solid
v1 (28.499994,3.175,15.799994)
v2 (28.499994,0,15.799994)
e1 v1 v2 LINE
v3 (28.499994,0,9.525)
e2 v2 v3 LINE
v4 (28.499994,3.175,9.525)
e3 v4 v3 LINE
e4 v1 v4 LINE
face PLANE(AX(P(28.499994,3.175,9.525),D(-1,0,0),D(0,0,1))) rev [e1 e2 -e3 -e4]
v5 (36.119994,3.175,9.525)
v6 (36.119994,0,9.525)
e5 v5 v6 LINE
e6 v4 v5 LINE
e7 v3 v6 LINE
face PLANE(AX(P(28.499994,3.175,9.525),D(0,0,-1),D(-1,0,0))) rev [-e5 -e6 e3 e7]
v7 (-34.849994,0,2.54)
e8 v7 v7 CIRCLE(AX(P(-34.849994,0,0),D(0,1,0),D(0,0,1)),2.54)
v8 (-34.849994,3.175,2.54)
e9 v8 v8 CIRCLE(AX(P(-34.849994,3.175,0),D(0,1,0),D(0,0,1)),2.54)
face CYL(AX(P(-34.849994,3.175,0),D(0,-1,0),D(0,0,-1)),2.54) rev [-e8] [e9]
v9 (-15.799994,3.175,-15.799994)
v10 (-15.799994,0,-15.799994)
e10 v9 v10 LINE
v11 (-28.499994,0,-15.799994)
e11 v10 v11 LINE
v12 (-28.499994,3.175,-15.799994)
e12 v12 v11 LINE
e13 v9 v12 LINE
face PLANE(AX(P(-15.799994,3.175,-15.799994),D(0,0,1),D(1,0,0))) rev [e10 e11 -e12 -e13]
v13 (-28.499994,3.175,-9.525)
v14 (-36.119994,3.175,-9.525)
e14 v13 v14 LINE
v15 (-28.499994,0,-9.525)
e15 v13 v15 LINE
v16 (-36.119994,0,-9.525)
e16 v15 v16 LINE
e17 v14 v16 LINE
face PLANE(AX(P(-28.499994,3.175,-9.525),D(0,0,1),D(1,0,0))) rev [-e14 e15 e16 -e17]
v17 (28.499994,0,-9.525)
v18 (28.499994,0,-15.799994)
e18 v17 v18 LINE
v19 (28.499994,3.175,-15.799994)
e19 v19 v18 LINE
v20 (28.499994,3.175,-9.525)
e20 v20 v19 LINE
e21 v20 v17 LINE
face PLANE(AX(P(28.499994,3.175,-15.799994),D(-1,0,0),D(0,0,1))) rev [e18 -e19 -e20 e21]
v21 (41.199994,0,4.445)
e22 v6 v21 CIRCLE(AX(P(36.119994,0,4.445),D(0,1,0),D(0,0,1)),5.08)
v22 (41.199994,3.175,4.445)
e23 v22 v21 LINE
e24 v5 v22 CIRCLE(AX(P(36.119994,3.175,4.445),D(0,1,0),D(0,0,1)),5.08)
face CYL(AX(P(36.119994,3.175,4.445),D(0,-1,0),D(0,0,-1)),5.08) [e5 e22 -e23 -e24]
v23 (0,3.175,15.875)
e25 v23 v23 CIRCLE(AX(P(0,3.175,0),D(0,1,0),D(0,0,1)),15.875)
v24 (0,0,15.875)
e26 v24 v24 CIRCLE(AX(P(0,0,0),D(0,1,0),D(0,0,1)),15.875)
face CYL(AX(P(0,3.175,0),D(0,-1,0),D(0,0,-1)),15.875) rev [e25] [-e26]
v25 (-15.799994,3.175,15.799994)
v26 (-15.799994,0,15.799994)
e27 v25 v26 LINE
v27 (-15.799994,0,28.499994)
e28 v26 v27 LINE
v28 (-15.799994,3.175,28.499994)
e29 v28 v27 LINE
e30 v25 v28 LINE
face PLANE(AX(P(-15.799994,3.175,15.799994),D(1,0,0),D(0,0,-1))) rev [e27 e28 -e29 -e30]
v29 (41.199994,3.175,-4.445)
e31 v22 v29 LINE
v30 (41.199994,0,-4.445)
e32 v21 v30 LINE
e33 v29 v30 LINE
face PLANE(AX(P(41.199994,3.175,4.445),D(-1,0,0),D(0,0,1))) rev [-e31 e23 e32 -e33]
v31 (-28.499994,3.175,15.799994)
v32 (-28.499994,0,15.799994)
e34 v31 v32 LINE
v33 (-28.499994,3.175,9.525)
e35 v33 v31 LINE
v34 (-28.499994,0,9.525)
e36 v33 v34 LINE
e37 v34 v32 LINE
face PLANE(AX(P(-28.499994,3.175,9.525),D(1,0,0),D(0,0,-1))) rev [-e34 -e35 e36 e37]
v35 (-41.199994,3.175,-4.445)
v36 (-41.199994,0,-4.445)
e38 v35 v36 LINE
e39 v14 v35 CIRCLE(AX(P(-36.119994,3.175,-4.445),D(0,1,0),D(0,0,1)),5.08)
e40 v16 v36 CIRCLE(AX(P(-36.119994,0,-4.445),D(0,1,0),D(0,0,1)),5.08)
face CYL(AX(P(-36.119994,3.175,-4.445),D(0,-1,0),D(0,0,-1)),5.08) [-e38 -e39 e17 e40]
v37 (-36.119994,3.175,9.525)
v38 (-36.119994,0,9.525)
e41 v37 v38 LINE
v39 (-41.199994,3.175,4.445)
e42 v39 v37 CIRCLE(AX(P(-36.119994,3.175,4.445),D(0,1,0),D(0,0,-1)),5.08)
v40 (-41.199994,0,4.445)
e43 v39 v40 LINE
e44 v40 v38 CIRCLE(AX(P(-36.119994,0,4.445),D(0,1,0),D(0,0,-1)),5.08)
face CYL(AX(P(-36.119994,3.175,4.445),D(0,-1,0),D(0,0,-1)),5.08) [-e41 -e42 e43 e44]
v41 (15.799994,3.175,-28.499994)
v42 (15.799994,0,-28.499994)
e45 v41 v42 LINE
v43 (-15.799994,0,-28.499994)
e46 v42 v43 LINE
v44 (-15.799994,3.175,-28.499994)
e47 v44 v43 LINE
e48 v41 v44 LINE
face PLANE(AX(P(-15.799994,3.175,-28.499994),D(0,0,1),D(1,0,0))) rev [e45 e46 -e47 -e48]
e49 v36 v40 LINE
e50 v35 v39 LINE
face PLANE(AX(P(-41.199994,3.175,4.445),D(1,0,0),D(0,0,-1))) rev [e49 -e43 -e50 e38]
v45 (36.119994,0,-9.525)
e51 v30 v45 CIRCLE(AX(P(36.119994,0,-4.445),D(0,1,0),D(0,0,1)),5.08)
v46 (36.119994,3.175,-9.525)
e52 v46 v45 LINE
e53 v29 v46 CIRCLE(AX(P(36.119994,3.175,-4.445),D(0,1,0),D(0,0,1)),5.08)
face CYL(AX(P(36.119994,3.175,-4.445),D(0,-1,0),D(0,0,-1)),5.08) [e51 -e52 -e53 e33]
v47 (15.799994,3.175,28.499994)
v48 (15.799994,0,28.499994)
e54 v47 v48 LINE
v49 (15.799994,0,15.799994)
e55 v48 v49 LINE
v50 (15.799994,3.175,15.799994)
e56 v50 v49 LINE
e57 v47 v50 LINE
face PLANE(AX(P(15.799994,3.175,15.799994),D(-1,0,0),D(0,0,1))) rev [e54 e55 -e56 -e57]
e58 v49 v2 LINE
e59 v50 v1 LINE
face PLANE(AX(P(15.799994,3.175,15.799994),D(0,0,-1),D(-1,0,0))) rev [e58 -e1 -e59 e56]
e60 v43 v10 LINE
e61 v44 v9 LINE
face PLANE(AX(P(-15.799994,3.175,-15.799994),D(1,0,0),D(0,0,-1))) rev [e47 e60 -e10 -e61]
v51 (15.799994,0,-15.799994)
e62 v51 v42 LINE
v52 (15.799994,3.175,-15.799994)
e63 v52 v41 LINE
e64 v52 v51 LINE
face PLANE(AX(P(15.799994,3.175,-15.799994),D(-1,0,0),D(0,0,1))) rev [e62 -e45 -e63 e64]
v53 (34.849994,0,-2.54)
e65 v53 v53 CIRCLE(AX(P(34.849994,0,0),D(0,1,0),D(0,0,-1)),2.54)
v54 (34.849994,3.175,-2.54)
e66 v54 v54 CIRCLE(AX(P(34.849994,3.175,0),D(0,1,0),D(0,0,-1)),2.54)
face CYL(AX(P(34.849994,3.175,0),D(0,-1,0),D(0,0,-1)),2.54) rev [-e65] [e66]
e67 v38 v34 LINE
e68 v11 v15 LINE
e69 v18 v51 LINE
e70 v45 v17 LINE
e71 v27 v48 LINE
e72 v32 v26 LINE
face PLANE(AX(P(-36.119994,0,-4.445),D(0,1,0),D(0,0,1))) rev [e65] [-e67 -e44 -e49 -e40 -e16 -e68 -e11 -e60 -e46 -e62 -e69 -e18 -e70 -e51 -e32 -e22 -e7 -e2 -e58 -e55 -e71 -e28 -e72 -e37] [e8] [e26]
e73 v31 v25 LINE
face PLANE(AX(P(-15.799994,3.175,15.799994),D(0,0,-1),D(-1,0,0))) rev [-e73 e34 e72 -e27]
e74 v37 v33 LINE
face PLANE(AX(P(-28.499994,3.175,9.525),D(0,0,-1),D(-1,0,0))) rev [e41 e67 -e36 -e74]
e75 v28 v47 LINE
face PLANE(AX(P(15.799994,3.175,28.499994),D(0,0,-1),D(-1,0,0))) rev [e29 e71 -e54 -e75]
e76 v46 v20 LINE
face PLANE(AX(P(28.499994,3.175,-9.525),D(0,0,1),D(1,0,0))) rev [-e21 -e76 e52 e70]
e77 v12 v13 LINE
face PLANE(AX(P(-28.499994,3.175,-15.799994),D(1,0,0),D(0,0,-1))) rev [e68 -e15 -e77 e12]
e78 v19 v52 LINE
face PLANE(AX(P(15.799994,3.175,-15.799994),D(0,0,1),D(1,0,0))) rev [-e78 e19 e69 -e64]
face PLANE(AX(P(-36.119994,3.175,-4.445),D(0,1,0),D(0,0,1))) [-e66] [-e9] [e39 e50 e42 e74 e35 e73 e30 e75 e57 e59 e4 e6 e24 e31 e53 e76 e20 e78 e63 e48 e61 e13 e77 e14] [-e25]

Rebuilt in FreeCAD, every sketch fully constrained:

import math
import FreeCAD as App
import Part
import Sketcher
Q = App.Units.Quantity

doc = App.newDocument("Part")
body = doc.addObject("PartDesign::Body", "Body")

sketch1 = doc.addObject("Sketcher::SketchObject", "Sketch")
body.addObject(sketch1)
sketch1.AttachmentSupport = (doc.XZ_Plane, [""])
sketch1.MapMode = "FlatFace"
sketch1.addGeometry([
    Part.LineSegment(App.Vector(-28.5, -15.8, 0), App.Vector(-28.5, -9.5, 0)),
    Part.LineSegment(App.Vector(-28.5, -9.5, 0), App.Vector(-36.1, -9.5, 0)),
    Part.ArcOfCircle(Part.Circle(App.Vector(-36.1, -4.4, 0), App.Vector(0, 0, 1), 5.1), math.radians(-180), math.radians(-90)),
    Part.LineSegment(App.Vector(-41.2, -4.4, 0), App.Vector(-41.2, 4.4, 0)),
    Part.ArcOfCircle(Part.Circle(App.Vector(-36.1, 4.4, 0), App.Vector(0, 0, 1), 5.1), math.radians(90), math.radians(180)),
    Part.LineSegment(App.Vector(-36.1, 9.5, 0), App.Vector(-28.5, 9.5, 0)),
    Part.LineSegment(App.Vector(-28.5, 9.5, 0), App.Vector(-28.5, 15.8, 0)),
    Part.LineSegment(App.Vector(-28.5, 15.8, 0), App.Vector(-15.8, 15.8, 0)),
    Part.LineSegment(App.Vector(-15.8, 15.8, 0), App.Vector(-15.8, 28.5, 0)),
    Part.LineSegment(App.Vector(-15.8, 28.5, 0), App.Vector(15.8, 28.5, 0)),
    Part.LineSegment(App.Vector(15.8, 28.5, 0), App.Vector(15.8, 15.8, 0)),
    Part.LineSegment(App.Vector(15.8, 15.8, 0), App.Vector(28.5, 15.8, 0)),
    Part.LineSegment(App.Vector(28.5, 15.8, 0), App.Vector(28.5, 9.5, 0)),
    Part.LineSegment(App.Vector(28.5, 9.5, 0), App.Vector(36.1, 9.5, 0)),
    Part.ArcOfCircle(Part.Circle(App.Vector(36.1, 4.4, 0), App.Vector(0, 0, 1), 5.1), math.radians(0), math.radians(90)),
    Part.LineSegment(App.Vector(41.2, 4.4, 0), App.Vector(41.2, -4.4, 0)),
    Part.ArcOfCircle(Part.Circle(App.Vector(36.1, -4.4, 0), App.Vector(0, 0, 1), 5.1), math.radians(-90), math.radians(0)),
    Part.LineSegment(App.Vector(36.1, -9.5, 0), App.Vector(28.5, -9.5, 0)),
    Part.LineSegment(App.Vector(28.5, -9.5, 0), App.Vector(28.5, -15.8, 0)),
    Part.LineSegment(App.Vector(28.5, -15.8, 0), App.Vector(15.8, -15.8, 0)),
    Part.LineSegment(App.Vector(15.8, -15.8, 0), App.Vector(15.8, -28.5, 0)),
    Part.LineSegment(App.Vector(15.8, -28.5, 0), App.Vector(-15.8, -28.5, 0)),
    Part.LineSegment(App.Vector(-15.8, -28.5, 0), App.Vector(-15.8, -15.8, 0)),
    Part.LineSegment(App.Vector(-15.8, -15.8, 0), App.Vector(-28.5, -15.8, 0)),
    Part.Circle(App.Vector(-34.8, 0, 0), App.Vector(0, 0, 1), 2.5),
    Part.Circle(App.Vector(0, 0, 0), App.Vector(0, 0, 1), 15.9),
    Part.Circle(App.Vector(34.8, 0, 0), App.Vector(0, 0, 1), 2.5),
], False)
sketch1.addConstraint([
    Sketcher.Constraint("Coincident", 0, 2, 1, 1),
    Sketcher.Constraint("Tangent", 1, 2, 2, 2),
    Sketcher.Constraint("Tangent", 2, 1, 3, 1),
    Sketcher.Constraint("Tangent", 3, 2, 4, 2),
    Sketcher.Constraint("Tangent", 4, 1, 5, 1),
    Sketcher.Constraint("Coincident", 5, 2, 6, 1),
    Sketcher.Constraint("Coincident", 6, 2, 7, 1),
    Sketcher.Constraint("Coincident", 7, 2, 8, 1),
    Sketcher.Constraint("Coincident", 8, 2, 9, 1),
    Sketcher.Constraint("Coincident", 9, 2, 10, 1),
    Sketcher.Constraint("Coincident", 10, 2, 11, 1),
    Sketcher.Constraint("Coincident", 11, 2, 12, 1),
    Sketcher.Constraint("Coincident", 12, 2, 13, 1),
    Sketcher.Constraint("Tangent", 13, 2, 14, 2),
    Sketcher.Constraint("Tangent", 14, 1, 15, 1),
    Sketcher.Constraint("Tangent", 15, 2, 16, 2),
    Sketcher.Constraint("Tangent", 16, 1, 17, 1),
    Sketcher.Constraint("Coincident", 17, 2, 18, 1),
    Sketcher.Constraint("Coincident", 18, 2, 19, 1),
    Sketcher.Constraint("Coincident", 19, 2, 20, 1),
    Sketcher.Constraint("Coincident", 20, 2, 21, 1),
    Sketcher.Constraint("Coincident", 21, 2, 22, 1),
    Sketcher.Constraint("Coincident", 22, 2, 23, 1),
    Sketcher.Constraint("Coincident", 23, 2, 0, 1),
    Sketcher.Constraint("Vertical", 0),
    Sketcher.Constraint("Horizontal", 1),
    Sketcher.Constraint("Vertical", 3),
    Sketcher.Constraint("Horizontal", 5),
    Sketcher.Constraint("Vertical", 6),
    Sketcher.Constraint("Horizontal", 7),
    Sketcher.Constraint("Vertical", 8),
    Sketcher.Constraint("Horizontal", 9),
    Sketcher.Constraint("Vertical", 10),
    Sketcher.Constraint("Horizontal", 11),
    Sketcher.Constraint("Vertical", 12),
    Sketcher.Constraint("Horizontal", 13),
    Sketcher.Constraint("Vertical", 15),
    Sketcher.Constraint("Horizontal", 17),
    Sketcher.Constraint("Vertical", 18),
    Sketcher.Constraint("Horizontal", 19),
    Sketcher.Constraint("Vertical", 20),
    Sketcher.Constraint("Horizontal", 21),
    Sketcher.Constraint("Vertical", 22),
    Sketcher.Constraint("Horizontal", 23),
    Sketcher.Constraint("Coincident", 25, 3, -1, 1),
    Sketcher.Constraint("Equal", 2, 4),
    Sketcher.Constraint("Equal", 4, 14),
    Sketcher.Constraint("Equal", 14, 16),
    Sketcher.Constraint("Equal", 24, 26),
    Sketcher.Constraint("Symmetric", 2, 3, 14, 3, -1, 1),
    Sketcher.Constraint("Symmetric", 24, 3, 26, 3, -1, 1),
    Sketcher.Constraint("Symmetric", 5, 2, 17, 2, -1, 1),
    Sketcher.Constraint("Symmetric", 7, 2, 19, 2, -1, 1),
    Sketcher.Constraint("Symmetric", 9, 2, 21, 2, -1, 1),
    Sketcher.Constraint("Symmetric", 11, 2, 23, 2, -1, 1),
    Sketcher.Constraint("Symmetric", 7, 2, 10, 2, -2),
    Sketcher.Constraint("Symmetric", 5, 2, 12, 2, -2),
    Sketcher.Constraint("PointOnObject", 24, 3, -1),
    Sketcher.Constraint("Equal", 23, 8),
    Sketcher.Constraint("Diameter", 24, Q("0.2 in")),
    Sketcher.Constraint("Radius", 2, Q("0.2 in")),
    Sketcher.Constraint("Diameter", 25, Q("1.25 in")),
    Sketcher.Constraint("DistanceX", 1, 2, 1, 1, Q("0.3 in")),
    Sketcher.Constraint("DistanceX", 7, 1, 7, 2, Q("0.5 in")),
    Sketcher.Constraint("DistanceY", 3, 1, 3, 2, Q("0.35 in")),
    Sketcher.Constraint("DistanceX", 2, 3, 24, 3, Q("0.05 in")),
    Sketcher.Constraint("DistanceX", 9, 1, 9, 2, Q("31.599988 mm")),
    Sketcher.Constraint("DistanceY", 0, 1, 0, 2, Q("6.274994 mm")),
])
pad1 = doc.addObject("PartDesign::Pad", "Pad")
body.addObject(pad1)
pad1.Profile = sketch1
pad1.Length = Q("0.125 in")
pad1.Reversed = True

doc.recompute()
